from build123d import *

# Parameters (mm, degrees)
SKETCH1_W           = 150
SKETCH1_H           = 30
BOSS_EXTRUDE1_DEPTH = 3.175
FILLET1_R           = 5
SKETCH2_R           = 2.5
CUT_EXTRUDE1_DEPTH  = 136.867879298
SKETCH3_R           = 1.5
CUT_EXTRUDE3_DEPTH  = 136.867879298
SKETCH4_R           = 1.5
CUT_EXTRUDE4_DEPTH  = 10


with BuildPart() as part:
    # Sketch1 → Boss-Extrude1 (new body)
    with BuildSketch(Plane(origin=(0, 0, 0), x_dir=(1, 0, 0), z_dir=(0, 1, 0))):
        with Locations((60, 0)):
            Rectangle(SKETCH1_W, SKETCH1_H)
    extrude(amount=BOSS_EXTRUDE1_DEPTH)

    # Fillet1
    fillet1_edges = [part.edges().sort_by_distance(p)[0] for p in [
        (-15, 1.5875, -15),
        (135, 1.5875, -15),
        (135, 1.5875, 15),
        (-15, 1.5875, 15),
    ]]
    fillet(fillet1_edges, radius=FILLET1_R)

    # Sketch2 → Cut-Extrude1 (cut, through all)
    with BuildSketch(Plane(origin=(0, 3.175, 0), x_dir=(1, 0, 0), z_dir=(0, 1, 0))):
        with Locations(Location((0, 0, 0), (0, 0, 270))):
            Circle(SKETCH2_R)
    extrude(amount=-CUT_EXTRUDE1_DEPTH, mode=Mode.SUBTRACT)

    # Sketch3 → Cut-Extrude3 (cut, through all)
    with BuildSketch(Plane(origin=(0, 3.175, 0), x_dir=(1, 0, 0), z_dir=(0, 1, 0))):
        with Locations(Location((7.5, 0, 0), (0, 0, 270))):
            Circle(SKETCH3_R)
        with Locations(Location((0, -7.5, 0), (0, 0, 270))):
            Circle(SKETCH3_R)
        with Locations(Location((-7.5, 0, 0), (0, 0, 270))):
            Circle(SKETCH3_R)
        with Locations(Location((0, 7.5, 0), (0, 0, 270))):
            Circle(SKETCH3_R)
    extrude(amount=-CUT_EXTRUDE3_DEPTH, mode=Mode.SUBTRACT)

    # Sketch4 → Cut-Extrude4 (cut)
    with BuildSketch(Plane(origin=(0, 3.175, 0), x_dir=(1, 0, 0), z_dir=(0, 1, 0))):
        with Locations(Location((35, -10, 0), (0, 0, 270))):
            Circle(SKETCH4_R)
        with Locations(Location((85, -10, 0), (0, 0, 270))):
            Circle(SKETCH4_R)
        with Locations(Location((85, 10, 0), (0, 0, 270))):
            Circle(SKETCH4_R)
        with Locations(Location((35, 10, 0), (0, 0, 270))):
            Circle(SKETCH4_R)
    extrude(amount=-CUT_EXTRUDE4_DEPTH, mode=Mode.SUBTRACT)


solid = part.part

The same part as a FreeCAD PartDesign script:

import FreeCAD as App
import Part
import Sketcher
from FreeCAD import Vector
Q = App.Units.Quantity


def edges_at(feature, points):
    """Names of the edges that pass closest to the given points."""
    edges = feature.Shape.Edges
    near = lambda p: min(range(len(edges)), key=lambda i: edges[i].distToShape(Part.Vertex(*p))[0])
    return sorted({f"Edge{near(p) + 1}" for p in points})

doc = App.newDocument("Part")
params = doc.addObject("Spreadsheet::Sheet", "Params")
for row, (alias, value) in enumerate([
    ("sketch1_width", "150 mm"),
    ("sketch1_height", "30 mm"),
    ("pad1_length", "3.175 mm"),
    ("fillet_radius", "5 mm"),
    ("sketch2_diameter", "5 mm"),
    ("sketch3_diameter", "3 mm"),
    ("sketch4_diameter", "3 mm"),
    ("pocket3_length", "10 mm"),
], start=1):
    params.set(f"A{row}", alias)
    params.set(f"B{row}", "=" + value)
    params.setAlias(f"B{row}", alias)

body = doc.addObject("PartDesign::Body", "Body")

# Sketch on XZ plane
sketch1 = body.newObject("Sketcher::SketchObject", "Sketch")
sketch1.AttachmentSupport = (doc.getObject("XZ_Plane"), [""])
sketch1.MapMode = "FlatFace"
sketch1.addGeometry(Part.LineSegment(Vector(-15, -15, 0), Vector(-15, 15, 0)), False)
sketch1.addGeometry(Part.LineSegment(Vector(-15, 15, 0), Vector(135, 15, 0)), False)
sketch1.addGeometry(Part.LineSegment(Vector(135, 15, 0), Vector(135, -15, 0)), False)
sketch1.addGeometry(Part.LineSegment(Vector(135, -15, 0), Vector(-15, -15, 0)), False)
sketch1.addConstraint(Sketcher.Constraint("Coincident", 0, 2, 1, 1))
sketch1.addConstraint(Sketcher.Constraint("Coincident", 1, 2, 2, 1))
sketch1.addConstraint(Sketcher.Constraint("Coincident", 2, 2, 3, 1))
sketch1.addConstraint(Sketcher.Constraint("Coincident", 3, 2, 0, 1))
sketch1.addConstraint(Sketcher.Constraint("Vertical", 0))
sketch1.addConstraint(Sketcher.Constraint("Horizontal", 1))
sketch1.addConstraint(Sketcher.Constraint("Vertical", 2))
sketch1.addConstraint(Sketcher.Constraint("Horizontal", 3))
sketch1.addConstraint(Sketcher.Constraint("DistanceX", 1, 1, 1, 2, Q("150 mm")))
sketch1.addConstraint(Sketcher.Constraint("DistanceY", 0, 1, 0, 2, Q("30 mm")))
sketch1.addConstraint(Sketcher.Constraint("DistanceX", 0, 2, -1, 1, Q("15 mm")))
sketch1.addConstraint(Sketcher.Constraint("DistanceY", -1, 1, 0, 2, Q("15 mm")))
sketch1.setExpression("Constraints[8]", "Params.sketch1_width")
sketch1.setExpression("Constraints[9]", "Params.sketch1_height")
pad1 = body.newObject("PartDesign::Pad", "Pad")
pad1.Profile = sketch1
pad1.setExpression("Length", "Params.pad1_length")
pad1.Reversed = True
doc.recompute()

fillet = body.newObject("PartDesign::Fillet", "Fillet")
fillet.Base = (pad1, edges_at(pad1, [
    (-15, 1.587, -15),
    (135, 1.587, -15),
    (135, 1.587, 15),
    (-15, 1.587, 15),
]))
fillet.setExpression("Radius", "Params.fillet_radius")

# Sketch on XZ plane
sketch2 = body.newObject("Sketcher::SketchObject", "Sketch001")
sketch2.AttachmentSupport = (doc.getObject("XZ_Plane"), [""])
sketch2.MapMode = "FlatFace"
sketch2.AttachmentOffset = App.Placement(Vector(0, 0, -3.175), App.Rotation())
sketch2.addGeometry(Part.Circle(Vector(0, 0, 0), Vector(0, 0, 1), 2.5), False)
sketch2.addConstraint(Sketcher.Constraint("Coincident", 0, 3, -1, 1))
sketch2.addConstraint(Sketcher.Constraint("Diameter", 0, Q("5 mm")))
sketch2.setExpression("Constraints[1]", "Params.sketch2_diameter")
pocket1 = body.newObject("PartDesign::Pocket", "Pocket")
pocket1.Profile = sketch2
pocket1.Type = "ThroughAll"
pocket1.Reversed = True

# Sketch on XZ plane
sketch3 = body.newObject("Sketcher::SketchObject", "Sketch002")
sketch3.AttachmentSupport = (doc.getObject("XZ_Plane"), [""])
sketch3.MapMode = "FlatFace"
sketch3.AttachmentOffset = App.Placement(Vector(0, 0, -3.175), App.Rotation())
sketch3.addGeometry(Part.Circle(Vector(7.5, 0, 0), Vector(0, 0, 1), 1.5), False)
sketch3.addGeometry(Part.Circle(Vector(0, 7.5, 0), Vector(0, 0, 1), 1.5), False)
sketch3.addGeometry(Part.Circle(Vector(-7.5, 0, 0), Vector(0, 0, 1), 1.5), False)
sketch3.addGeometry(Part.Circle(Vector(0, -7.5, 0), Vector(0, 0, 1), 1.5), False)
sketch3.addConstraint(Sketcher.Constraint("Equal", 0, 1))
sketch3.addConstraint(Sketcher.Constraint("Equal", 1, 2))
sketch3.addConstraint(Sketcher.Constraint("Equal", 2, 3))
sketch3.addConstraint(Sketcher.Constraint("Symmetric", 0, 3, 2, 3, -1, 1))
sketch3.addConstraint(Sketcher.Constraint("Symmetric", 1, 3, 3, 3, -1, 1))
sketch3.addConstraint(Sketcher.Constraint("PointOnObject", 0, 3, -1))
sketch3.addConstraint(Sketcher.Constraint("PointOnObject", 1, 3, -2))
sketch3.addConstraint(Sketcher.Constraint("Diameter", 0, Q("3 mm")))
sketch3.addConstraint(Sketcher.Constraint("DistanceX", 2, 3, 0, 3, Q("15 mm")))
sketch3.addConstraint(Sketcher.Constraint("DistanceY", 3, 3, 1, 3, Q("15 mm")))
sketch3.setExpression("Constraints[7]", "Params.sketch3_diameter")
pocket2 = body.newObject("PartDesign::Pocket", "Pocket001")
pocket2.Profile = sketch3
pocket2.Type = "ThroughAll"
pocket2.Reversed = True

# Sketch on XZ plane
sketch4 = body.newObject("Sketcher::SketchObject", "Sketch003")
sketch4.AttachmentSupport = (doc.getObject("XZ_Plane"), [""])
sketch4.MapMode = "FlatFace"
sketch4.AttachmentOffset = App.Placement(Vector(0, 0, -3.175), App.Rotation())
sketch4.addGeometry(Part.Circle(Vector(35, 10, 0), Vector(0, 0, 1), 1.5), False)
sketch4.addGeometry(Part.Circle(Vector(85, 10, 0), Vector(0, 0, 1), 1.5), False)
sketch4.addGeometry(Part.Circle(Vector(85, -10, 0), Vector(0, 0, 1), 1.5), False)
sketch4.addGeometry(Part.Circle(Vector(35, -10, 0), Vector(0, 0, 1), 1.5), False)
sketch4.addConstraint(Sketcher.Constraint("Equal", 0, 1))
sketch4.addConstraint(Sketcher.Constraint("Equal", 1, 2))
sketch4.addConstraint(Sketcher.Constraint("Equal", 2, 3))
sketch4.addConstraint(Sketcher.Constraint("Symmetric", 1, 3, 2, 3, -1))
sketch4.addConstraint(Sketcher.Constraint("Symmetric", 0, 3, 3, 3, -1))
sketch4.addConstraint(Sketcher.Constraint("Horizontal", 0, 3, 1, 3))
sketch4.addConstraint(Sketcher.Constraint("Diameter", 0, Q("3 mm")))
sketch4.addConstraint(Sketcher.Constraint("DistanceX", -1, 1, 0, 3, Q("35 mm")))
sketch4.addConstraint(Sketcher.Constraint("DistanceY", -1, 1, 0, 3, Q("10 mm")))
sketch4.addConstraint(Sketcher.Constraint("DistanceX", -1, 1, 1, 3, Q("85 mm")))
sketch4.setExpression("Constraints[6]", "Params.sketch4_diameter")
pocket3 = body.newObject("PartDesign::Pocket", "Pocket002")
pocket3.Profile = sketch4
pocket3.setExpression("Length", "Params.pocket3_length")
pocket3.Reversed = True

doc.recompute()
